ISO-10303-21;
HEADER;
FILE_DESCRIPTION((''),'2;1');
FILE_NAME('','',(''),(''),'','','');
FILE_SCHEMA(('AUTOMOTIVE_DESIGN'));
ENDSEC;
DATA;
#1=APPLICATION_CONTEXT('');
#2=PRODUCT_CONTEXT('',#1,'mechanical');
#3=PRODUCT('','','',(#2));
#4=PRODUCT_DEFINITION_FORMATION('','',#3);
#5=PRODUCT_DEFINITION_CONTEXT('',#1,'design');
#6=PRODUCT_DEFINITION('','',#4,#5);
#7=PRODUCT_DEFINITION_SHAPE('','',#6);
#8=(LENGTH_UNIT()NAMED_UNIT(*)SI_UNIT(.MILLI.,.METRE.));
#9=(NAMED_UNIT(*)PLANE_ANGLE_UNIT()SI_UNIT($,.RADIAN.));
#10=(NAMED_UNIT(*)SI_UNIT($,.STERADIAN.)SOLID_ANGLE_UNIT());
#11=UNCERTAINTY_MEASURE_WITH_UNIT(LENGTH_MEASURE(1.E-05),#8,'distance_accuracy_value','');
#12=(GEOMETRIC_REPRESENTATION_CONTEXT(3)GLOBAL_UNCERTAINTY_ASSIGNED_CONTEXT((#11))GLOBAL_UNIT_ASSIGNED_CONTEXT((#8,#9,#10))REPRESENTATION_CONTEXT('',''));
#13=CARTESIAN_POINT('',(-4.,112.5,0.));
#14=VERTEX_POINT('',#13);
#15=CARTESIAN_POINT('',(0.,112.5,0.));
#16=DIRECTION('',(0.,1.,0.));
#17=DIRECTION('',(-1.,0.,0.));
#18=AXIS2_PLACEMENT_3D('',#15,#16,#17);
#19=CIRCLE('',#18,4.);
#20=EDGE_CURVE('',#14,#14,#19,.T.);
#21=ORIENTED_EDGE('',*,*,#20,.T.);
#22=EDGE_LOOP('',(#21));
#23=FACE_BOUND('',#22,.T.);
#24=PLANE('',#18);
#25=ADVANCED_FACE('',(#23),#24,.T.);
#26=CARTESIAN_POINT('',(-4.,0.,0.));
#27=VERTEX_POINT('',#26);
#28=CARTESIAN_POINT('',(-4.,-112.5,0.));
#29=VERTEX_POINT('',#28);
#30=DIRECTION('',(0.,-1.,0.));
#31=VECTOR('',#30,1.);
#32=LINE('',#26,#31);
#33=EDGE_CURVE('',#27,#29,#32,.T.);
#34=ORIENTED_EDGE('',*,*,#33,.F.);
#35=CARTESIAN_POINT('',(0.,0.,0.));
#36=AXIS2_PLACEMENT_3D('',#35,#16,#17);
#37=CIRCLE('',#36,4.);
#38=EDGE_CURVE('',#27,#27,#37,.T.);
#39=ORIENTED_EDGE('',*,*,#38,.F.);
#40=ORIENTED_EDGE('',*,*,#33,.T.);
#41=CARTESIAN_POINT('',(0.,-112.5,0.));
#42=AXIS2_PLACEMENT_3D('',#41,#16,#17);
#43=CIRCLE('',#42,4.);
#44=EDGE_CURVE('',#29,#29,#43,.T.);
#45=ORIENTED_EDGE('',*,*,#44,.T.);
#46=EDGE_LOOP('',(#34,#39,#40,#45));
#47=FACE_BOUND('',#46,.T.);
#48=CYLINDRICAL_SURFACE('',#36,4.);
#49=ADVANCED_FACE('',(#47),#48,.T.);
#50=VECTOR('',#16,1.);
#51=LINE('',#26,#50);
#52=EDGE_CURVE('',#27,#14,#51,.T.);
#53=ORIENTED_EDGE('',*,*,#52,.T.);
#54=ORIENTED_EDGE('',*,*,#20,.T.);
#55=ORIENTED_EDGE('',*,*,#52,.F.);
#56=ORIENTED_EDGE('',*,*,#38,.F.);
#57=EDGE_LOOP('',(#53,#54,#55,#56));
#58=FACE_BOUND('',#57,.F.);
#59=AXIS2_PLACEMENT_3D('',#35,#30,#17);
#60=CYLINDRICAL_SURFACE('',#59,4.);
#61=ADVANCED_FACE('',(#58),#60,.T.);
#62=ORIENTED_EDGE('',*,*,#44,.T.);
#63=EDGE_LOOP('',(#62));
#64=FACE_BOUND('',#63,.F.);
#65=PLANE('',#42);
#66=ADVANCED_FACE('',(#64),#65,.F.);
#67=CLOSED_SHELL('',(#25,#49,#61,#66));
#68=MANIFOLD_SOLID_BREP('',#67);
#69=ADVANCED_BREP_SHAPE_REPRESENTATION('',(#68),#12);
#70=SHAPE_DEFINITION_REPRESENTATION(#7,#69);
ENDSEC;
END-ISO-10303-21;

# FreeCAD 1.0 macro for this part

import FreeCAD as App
import Part
import Sketcher
from FreeCAD import Vector
Q = App.Units.Quantity

doc = App.newDocument("Part")
body = doc.addObject("PartDesign::Body", "Body")

# Sketch on XZ plane
sketch1 = body.newObject("Sketcher::SketchObject", "Sketch")
sketch1.AttachmentSupport = (doc.getObject("XZ_Plane"), [""])
sketch1.MapMode = "FlatFace"
sketch1.addGeometry(Part.Circle(Vector(0, 0, 0), Vector(0, 0, 1), 4), False)
sketch1.addConstraint([
    Sketcher.Constraint("Coincident", 0, 3, -1, 1),
    Sketcher.Constraint("Diameter", 0, Q("8 mm")),
])
pad1 = body.newObject("PartDesign::Pad", "Pad")
pad1.Profile = sketch1
pad1.Length = 225
pad1.Midplane = True

doc.recompute()
